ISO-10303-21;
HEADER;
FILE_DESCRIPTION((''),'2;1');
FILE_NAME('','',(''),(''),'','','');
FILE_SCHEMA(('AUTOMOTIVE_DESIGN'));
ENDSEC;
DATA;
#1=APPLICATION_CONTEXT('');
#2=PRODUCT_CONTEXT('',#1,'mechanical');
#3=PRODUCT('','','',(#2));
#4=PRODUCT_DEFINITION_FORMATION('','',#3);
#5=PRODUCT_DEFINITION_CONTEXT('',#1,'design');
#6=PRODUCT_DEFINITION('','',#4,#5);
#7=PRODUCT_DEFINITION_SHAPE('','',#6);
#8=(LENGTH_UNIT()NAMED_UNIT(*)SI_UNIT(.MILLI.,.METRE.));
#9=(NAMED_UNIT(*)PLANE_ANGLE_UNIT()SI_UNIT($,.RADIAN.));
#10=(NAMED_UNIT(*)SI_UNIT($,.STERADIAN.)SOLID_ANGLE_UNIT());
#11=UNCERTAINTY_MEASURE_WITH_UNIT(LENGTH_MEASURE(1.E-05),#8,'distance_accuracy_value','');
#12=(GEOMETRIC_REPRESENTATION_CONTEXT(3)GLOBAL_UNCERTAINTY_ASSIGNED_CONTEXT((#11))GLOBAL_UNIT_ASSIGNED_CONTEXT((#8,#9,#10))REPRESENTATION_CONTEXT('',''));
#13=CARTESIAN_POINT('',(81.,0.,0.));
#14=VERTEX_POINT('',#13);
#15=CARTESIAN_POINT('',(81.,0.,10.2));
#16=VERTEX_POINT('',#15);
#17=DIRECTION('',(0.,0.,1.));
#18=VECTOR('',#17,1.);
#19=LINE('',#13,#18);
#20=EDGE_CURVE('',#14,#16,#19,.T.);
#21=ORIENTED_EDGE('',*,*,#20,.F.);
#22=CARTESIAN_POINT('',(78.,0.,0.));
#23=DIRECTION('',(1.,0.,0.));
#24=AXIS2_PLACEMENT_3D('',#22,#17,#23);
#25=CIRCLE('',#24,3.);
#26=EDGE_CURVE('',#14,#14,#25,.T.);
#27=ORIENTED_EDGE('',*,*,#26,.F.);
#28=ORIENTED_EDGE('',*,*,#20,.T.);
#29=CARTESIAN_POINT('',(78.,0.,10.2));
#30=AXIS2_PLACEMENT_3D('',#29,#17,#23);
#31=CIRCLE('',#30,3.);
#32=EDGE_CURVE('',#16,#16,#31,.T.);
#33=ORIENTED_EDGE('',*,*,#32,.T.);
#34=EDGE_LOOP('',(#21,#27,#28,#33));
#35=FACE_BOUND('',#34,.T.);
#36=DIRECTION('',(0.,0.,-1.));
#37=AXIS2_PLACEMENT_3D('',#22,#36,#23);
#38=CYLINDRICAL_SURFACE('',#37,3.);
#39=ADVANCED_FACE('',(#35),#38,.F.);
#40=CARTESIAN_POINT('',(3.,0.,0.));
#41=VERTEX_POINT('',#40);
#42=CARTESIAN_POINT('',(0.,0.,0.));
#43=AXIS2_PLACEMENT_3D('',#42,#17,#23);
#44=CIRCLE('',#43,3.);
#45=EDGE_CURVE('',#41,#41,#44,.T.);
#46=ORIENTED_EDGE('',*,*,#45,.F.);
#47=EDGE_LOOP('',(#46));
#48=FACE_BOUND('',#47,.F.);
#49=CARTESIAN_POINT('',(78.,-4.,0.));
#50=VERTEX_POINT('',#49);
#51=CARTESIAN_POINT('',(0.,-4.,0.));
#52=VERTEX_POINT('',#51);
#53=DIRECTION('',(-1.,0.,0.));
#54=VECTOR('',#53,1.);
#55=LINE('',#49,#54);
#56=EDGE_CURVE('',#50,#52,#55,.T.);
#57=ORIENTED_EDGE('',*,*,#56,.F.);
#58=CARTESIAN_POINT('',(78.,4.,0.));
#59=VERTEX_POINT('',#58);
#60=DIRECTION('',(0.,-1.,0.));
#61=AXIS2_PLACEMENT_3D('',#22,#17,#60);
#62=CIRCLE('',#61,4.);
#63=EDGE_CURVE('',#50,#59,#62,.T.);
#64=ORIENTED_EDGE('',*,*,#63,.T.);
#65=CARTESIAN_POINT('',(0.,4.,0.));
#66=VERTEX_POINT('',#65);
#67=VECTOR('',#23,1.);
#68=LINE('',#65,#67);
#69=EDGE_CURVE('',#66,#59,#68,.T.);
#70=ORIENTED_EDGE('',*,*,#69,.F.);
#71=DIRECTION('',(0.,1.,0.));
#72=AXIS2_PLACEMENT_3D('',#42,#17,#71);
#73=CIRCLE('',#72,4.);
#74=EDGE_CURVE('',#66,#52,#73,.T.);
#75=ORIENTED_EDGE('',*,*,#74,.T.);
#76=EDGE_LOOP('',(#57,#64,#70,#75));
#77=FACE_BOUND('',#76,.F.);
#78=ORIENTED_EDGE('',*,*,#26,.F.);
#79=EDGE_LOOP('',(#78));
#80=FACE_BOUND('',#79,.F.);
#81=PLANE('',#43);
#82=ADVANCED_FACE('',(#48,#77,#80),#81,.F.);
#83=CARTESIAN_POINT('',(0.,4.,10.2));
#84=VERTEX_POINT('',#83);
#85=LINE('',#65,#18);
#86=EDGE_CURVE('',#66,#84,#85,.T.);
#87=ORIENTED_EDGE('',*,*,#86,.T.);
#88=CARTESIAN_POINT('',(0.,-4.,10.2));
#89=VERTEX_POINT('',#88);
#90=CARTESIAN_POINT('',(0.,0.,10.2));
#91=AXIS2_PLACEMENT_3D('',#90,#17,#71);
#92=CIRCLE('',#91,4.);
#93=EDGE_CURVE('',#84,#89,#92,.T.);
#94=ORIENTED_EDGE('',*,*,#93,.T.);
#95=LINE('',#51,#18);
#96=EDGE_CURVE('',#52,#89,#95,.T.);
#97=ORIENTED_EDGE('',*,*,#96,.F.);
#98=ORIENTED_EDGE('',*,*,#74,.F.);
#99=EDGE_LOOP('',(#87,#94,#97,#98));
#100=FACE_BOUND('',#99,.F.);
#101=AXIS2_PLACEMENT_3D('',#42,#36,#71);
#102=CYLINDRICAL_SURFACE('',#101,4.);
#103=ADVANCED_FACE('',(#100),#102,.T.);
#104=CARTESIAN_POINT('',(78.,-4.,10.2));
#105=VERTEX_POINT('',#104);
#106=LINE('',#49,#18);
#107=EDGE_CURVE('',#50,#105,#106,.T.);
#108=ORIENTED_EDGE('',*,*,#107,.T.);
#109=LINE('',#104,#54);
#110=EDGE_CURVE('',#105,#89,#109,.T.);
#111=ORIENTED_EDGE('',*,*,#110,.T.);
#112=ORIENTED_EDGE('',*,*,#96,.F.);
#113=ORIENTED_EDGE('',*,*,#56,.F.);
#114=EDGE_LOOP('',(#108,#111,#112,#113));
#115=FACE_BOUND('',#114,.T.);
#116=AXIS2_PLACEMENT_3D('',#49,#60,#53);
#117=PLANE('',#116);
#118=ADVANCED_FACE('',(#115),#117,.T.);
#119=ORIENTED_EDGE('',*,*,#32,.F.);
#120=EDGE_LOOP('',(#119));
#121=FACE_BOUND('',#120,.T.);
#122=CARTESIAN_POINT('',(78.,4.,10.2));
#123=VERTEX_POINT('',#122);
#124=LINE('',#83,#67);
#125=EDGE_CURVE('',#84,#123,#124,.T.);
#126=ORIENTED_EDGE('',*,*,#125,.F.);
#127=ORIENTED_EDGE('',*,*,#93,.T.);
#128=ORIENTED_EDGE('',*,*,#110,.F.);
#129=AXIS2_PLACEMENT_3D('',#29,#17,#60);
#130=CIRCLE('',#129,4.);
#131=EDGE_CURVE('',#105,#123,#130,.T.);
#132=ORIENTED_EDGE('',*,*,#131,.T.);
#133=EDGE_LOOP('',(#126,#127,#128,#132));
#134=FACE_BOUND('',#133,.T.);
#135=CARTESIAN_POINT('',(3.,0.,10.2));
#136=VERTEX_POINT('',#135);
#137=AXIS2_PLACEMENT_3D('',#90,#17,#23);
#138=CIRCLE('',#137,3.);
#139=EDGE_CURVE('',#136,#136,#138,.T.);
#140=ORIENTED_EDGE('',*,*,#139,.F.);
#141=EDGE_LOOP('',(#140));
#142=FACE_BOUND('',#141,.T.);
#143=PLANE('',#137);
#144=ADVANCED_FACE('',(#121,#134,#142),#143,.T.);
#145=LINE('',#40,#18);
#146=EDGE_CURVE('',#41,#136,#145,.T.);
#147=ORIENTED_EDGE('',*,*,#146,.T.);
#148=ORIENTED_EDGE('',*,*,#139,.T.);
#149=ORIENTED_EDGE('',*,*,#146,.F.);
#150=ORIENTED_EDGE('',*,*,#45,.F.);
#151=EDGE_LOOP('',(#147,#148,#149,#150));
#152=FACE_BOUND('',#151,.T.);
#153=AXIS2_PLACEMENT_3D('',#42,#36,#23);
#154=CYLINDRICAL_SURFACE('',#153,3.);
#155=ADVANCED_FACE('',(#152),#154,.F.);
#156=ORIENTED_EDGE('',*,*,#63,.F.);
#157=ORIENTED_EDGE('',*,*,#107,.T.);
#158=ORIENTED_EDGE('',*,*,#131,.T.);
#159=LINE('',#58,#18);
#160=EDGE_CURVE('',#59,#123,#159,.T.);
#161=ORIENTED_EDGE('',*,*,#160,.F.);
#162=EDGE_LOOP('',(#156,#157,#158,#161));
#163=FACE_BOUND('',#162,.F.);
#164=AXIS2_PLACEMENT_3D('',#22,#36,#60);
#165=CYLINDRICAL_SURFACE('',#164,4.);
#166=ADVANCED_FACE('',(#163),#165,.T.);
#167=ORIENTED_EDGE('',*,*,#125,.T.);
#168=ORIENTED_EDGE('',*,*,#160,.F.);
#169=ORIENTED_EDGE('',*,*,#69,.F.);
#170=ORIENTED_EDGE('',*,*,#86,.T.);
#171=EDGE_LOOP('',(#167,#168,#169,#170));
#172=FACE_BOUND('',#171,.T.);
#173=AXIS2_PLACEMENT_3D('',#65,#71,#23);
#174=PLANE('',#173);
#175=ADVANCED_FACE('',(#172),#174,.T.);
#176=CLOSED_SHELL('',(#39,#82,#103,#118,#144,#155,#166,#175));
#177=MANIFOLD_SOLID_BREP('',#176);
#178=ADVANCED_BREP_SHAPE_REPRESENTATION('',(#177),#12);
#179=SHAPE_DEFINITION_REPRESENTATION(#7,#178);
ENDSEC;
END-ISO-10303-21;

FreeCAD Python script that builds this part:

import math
import FreeCAD as App
import Part
import Sketcher

V = App.Vector
Q = App.Units.Quantity

doc = App.newDocument("Part")
body = doc.addObject("PartDesign::Body", "Body")

sketch1 = body.newObject("Sketcher::SketchObject", "Sketch")
sketch1.AttachmentSupport = (doc.getObject("XY_Plane"), [""])
sketch1.MapMode = "FlatFace"
sketch1.addGeometry(Part.LineSegment(V(78, 4, 0), V(0, 4, 0)), False)
sketch1.addGeometry(Part.ArcOfCircle(Part.Circle(V(0, 0, 0), V(0, 0, 1), 4), math.radians(90), math.radians(270)), False)
sketch1.addGeometry(Part.LineSegment(V(0, -4, 0), V(78, -4, 0)), False)
sketch1.addGeometry(Part.ArcOfCircle(Part.Circle(V(78, 0, 0), V(0, 0, 1), 4), math.radians(-90), math.radians(90)), False)
sketch1.addGeometry(Part.Circle(V(0, 0, 0), V(0, 0, 1), 3), False)
sketch1.addGeometry(Part.Circle(V(78, 0, 0), V(0, 0, 1), 3), False)
sketch1.addConstraint(Sketcher.Constraint("Tangent", 0, 2, 1, 1))
sketch1.addConstraint(Sketcher.Constraint("Tangent", 1, 2, 2, 1))
sketch1.addConstraint(Sketcher.Constraint("Tangent", 2, 2, 3, 1))
sketch1.addConstraint(Sketcher.Constraint("Tangent", 3, 2, 0, 1))
sketch1.addConstraint(Sketcher.Constraint("Horizontal", 0))
sketch1.addConstraint(Sketcher.Constraint("Horizontal", 2))
sketch1.addConstraint(Sketcher.Constraint("Coincident", 1, 3, -1, 1))
sketch1.addConstraint(Sketcher.Constraint("Coincident", 4, 3, -1, 1))
sketch1.addConstraint(Sketcher.Constraint("Coincident", 5, 3, 3, 3))
sketch1.addConstraint(Sketcher.Constraint("Equal", 4, 5))
sketch1.addConstraint(Sketcher.Constraint("Diameter", 4, Q("6 mm")))
sketch1.addConstraint(Sketcher.Constraint("Radius", 1, Q("4 mm")))
sketch1.addConstraint(Sketcher.Constraint("DistanceX", 0, 2, 0, 1, Q("78 mm")))
pad1 = body.newObject("PartDesign::Pad", "Pad")
pad1.Profile = sketch1
pad1.Length = 10.2

doc.recompute()
